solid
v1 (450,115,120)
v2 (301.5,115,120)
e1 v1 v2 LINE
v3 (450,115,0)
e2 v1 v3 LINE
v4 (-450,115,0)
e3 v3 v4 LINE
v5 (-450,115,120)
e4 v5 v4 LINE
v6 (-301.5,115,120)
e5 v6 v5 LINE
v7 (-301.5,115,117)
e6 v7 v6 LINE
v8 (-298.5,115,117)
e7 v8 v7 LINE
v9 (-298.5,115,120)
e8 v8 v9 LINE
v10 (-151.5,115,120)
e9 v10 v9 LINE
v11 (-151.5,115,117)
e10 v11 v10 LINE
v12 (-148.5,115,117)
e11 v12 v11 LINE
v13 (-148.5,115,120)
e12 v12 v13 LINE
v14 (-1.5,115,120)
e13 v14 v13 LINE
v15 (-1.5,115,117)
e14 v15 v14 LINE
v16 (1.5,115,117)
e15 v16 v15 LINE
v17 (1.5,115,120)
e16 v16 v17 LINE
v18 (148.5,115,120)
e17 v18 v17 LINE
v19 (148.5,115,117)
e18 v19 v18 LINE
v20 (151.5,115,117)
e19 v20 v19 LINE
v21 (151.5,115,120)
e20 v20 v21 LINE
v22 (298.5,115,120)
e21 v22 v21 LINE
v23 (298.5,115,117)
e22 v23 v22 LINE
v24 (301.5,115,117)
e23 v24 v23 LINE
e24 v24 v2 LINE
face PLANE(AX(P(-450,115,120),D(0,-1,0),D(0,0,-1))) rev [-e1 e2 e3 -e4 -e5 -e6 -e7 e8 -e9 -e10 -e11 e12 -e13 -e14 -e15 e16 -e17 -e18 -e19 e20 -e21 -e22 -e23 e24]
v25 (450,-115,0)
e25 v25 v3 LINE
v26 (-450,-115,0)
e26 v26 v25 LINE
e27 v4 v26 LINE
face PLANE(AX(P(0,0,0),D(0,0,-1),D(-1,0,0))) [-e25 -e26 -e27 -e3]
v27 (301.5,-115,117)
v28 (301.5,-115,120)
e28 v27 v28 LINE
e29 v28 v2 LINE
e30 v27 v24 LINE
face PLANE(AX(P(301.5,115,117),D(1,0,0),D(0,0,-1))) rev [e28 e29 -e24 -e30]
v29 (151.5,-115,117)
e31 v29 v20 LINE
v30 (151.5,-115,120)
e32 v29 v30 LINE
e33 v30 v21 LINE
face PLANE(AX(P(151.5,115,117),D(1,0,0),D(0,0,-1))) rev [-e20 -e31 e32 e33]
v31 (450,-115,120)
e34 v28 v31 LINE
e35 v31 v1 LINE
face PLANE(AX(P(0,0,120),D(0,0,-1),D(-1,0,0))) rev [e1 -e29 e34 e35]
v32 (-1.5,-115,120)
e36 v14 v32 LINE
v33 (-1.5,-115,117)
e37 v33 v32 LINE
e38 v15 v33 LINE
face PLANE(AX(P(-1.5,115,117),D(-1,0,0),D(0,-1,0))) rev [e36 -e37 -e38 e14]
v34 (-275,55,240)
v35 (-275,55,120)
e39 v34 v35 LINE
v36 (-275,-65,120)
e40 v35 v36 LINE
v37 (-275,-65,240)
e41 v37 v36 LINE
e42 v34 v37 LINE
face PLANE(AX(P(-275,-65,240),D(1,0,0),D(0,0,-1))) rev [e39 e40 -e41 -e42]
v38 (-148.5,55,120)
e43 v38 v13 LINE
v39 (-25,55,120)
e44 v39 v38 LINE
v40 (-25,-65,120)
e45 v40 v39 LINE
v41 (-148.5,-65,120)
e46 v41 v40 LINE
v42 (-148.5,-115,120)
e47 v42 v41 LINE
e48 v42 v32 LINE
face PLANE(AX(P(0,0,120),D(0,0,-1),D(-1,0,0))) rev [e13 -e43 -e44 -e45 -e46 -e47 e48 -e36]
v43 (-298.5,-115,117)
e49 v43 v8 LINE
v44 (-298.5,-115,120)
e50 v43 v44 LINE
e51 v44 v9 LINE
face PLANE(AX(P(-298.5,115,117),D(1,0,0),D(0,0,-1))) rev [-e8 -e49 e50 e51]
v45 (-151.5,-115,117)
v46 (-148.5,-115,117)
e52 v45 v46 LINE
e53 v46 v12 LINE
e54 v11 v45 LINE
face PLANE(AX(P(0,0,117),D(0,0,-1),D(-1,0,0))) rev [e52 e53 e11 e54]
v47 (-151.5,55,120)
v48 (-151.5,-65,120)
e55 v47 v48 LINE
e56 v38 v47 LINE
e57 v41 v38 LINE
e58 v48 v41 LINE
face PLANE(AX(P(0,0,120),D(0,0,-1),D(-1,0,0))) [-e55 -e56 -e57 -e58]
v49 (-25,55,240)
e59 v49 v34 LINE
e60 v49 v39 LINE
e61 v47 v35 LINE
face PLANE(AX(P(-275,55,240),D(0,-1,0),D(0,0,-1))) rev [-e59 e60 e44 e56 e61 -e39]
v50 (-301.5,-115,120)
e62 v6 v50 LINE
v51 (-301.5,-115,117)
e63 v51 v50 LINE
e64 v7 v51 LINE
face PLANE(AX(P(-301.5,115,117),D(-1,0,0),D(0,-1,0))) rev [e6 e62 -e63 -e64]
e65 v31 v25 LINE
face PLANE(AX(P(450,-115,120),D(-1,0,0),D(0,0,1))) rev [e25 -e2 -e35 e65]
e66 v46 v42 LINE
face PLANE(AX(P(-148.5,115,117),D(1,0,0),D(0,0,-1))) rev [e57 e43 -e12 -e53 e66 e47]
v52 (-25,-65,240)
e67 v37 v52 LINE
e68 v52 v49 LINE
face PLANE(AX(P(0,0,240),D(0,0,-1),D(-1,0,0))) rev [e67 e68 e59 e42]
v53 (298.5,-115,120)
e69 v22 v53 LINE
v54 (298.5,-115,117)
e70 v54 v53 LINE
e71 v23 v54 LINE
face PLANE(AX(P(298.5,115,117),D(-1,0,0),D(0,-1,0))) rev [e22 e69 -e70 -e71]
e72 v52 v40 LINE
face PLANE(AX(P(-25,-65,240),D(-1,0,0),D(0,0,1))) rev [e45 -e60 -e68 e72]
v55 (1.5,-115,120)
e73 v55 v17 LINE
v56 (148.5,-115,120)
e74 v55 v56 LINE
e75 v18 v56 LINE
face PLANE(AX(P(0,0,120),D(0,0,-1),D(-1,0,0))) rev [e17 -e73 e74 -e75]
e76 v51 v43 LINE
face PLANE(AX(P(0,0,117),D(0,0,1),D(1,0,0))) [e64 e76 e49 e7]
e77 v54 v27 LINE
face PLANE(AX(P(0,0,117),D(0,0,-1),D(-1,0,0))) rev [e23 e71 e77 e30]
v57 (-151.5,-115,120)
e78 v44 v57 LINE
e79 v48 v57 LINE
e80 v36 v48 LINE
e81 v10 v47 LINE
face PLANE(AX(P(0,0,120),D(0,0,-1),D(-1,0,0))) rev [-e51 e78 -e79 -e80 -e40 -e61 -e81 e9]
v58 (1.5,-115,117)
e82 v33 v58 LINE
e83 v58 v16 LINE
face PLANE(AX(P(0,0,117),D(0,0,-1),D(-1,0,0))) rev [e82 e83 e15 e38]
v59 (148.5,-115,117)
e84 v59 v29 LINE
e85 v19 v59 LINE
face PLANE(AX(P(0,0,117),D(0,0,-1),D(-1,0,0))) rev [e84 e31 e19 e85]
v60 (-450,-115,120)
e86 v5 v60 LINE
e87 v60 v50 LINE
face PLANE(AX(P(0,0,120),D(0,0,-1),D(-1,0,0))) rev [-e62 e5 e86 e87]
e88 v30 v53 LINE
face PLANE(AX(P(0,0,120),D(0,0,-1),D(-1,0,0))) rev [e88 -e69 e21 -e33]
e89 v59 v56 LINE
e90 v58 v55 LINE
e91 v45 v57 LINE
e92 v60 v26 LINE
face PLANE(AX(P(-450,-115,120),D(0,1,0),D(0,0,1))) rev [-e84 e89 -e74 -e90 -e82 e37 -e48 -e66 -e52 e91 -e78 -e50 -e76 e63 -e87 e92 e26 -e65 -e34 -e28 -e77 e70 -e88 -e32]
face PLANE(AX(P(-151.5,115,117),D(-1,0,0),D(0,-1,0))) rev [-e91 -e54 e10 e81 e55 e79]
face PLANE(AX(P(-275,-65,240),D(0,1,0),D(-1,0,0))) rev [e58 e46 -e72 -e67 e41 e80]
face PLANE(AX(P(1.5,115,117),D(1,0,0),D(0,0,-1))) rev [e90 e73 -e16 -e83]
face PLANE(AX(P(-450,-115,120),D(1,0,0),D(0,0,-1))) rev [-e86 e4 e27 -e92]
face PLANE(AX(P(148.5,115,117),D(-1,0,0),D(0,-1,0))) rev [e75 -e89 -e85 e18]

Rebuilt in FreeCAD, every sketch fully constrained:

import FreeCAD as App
import Part
import Sketcher

V = App.Vector


def add_polygon(sketch, points):
    """Adds a closed chain of lines whose ends are joined by coincident constraints."""
    first, n = sketch.GeometryCount, len(points)
    for a, b in zip(points, points[1:] + points[:1]):
        sketch.addGeometry(Part.LineSegment(App.Vector(*a, 0), App.Vector(*b, 0)), False)
    for i in range(n):
        sketch.addConstraint(Sketcher.Constraint("Coincident", first + i, 2, first + (i + 1) % n, 1))

doc = App.newDocument("Part")
body = doc.addObject("PartDesign::Body", "Body")

sketch1 = body.newObject("Sketcher::SketchObject", "Sketch")
sketch1.AttachmentSupport = (doc.getObject("XY_Plane"), [""])
sketch1.MapMode = "FlatFace"
add_polygon(sketch1, [(-450, 115), (-450, -115), (450, -115), (450, 115)])
sketch1.addConstraint([
    Sketcher.Constraint("Vertical", 0),
    Sketcher.Constraint("Horizontal", 1),
    Sketcher.Constraint("Vertical", 2),
    Sketcher.Constraint("Horizontal", 3),
    Sketcher.Constraint("Symmetric", 0, 2, 2, 2, -1, 1),
    Sketcher.Constraint("DistanceX", 1, 1, 1, 2, 900.0),
    Sketcher.Constraint("DistanceY", 0, 2, 0, 1, 230.0),
])
pad1 = body.newObject("PartDesign::Pad", "Pad")
pad1.Profile = sketch1
pad1.Length = 120

sketch2 = body.newObject("Sketcher::SketchObject", "Sketch001")
sketch2.AttachmentSupport = (doc.getObject("XY_Plane"), [""])
sketch2.MapMode = "FlatFace"
sketch2.AttachmentOffset = App.Placement(V(0, 0, 120), App.Rotation())
add_polygon(sketch2, [(-301.5, 115), (-301.5, -115), (-298.5, -115), (-298.5, 115)])
add_polygon(sketch2, [(-151.5, 115), (-151.5, -115), (-148.5, -115), (-148.5, 115)])
add_polygon(sketch2, [(-1.5, 115), (-1.5, -115), (1.5, -115), (1.5, 115)])
add_polygon(sketch2, [(148.5, 115), (148.5, -115), (151.5, -115), (151.5, 115)])
add_polygon(sketch2, [(298.5, 115), (298.5, -115), (301.5, -115), (301.5, 115)])
sketch2.addConstraint([
    Sketcher.Constraint("Vertical", 0),
    Sketcher.Constraint("Horizontal", 1),
    Sketcher.Constraint("Vertical", 2),
    Sketcher.Constraint("Horizontal", 3),
    Sketcher.Constraint("Vertical", 4),
    Sketcher.Constraint("Horizontal", 5),
    Sketcher.Constraint("Vertical", 6),
    Sketcher.Constraint("Horizontal", 7),
    Sketcher.Constraint("Vertical", 8),
    Sketcher.Constraint("Horizontal", 9),
    Sketcher.Constraint("Vertical", 10),
    Sketcher.Constraint("Horizontal", 11),
    Sketcher.Constraint("Vertical", 12),
    Sketcher.Constraint("Horizontal", 13),
    Sketcher.Constraint("Vertical", 14),
    Sketcher.Constraint("Horizontal", 15),
    Sketcher.Constraint("Vertical", 16),
    Sketcher.Constraint("Horizontal", 17),
    Sketcher.Constraint("Vertical", 18),
    Sketcher.Constraint("Horizontal", 19),
    Sketcher.Constraint("Symmetric", 8, 2, 10, 2, -1, 1),
    Sketcher.Constraint("Symmetric", 6, 2, 12, 2, -1, 1),
    Sketcher.Constraint("Symmetric", 4, 2, 14, 2, -1, 1),
    Sketcher.Constraint("Symmetric", 2, 2, 16, 2, -1, 1),
    Sketcher.Constraint("Symmetric", 0, 2, 18, 2, -1, 1),
    Sketcher.Constraint("Horizontal", 1, 2, 4, 2),
    Sketcher.Constraint("Horizontal", 3, 2, 6, 2),
    Sketcher.Constraint("Horizontal", 5, 2, 8, 2),
    Sketcher.Constraint("Horizontal", 7, 2, 10, 2),
    Sketcher.Constraint("Equal", 3, 5),
    Sketcher.Constraint("Equal", 7, 9),
    Sketcher.Constraint("DistanceX", 1, 1, 1, 2, 3.0),
    Sketcher.Constraint("DistanceY", 0, 2, 0, 1, 230.0),
    Sketcher.Constraint("DistanceX", 1, 2, 4, 2, 147.0),
    Sketcher.Constraint("DistanceX", 5, 2, 8, 2, 147.0),
])
pocket1 = body.newObject("PartDesign::Pocket", "Pocket")
pocket1.Profile = sketch2
pocket1.Length = 3

sketch3 = body.newObject("Sketcher::SketchObject", "Sketch002")
sketch3.AttachmentSupport = (doc.getObject("XY_Plane"), [""])
sketch3.MapMode = "FlatFace"
sketch3.AttachmentOffset = App.Placement(V(0, 0, 120), App.Rotation())
add_polygon(sketch3, [(-275, 55), (-275, -65), (-25, -65), (-25, 55)])
sketch3.addConstraint([
    Sketcher.Constraint("Vertical", 0),
    Sketcher.Constraint("Horizontal", 1),
    Sketcher.Constraint("Vertical", 2),
    Sketcher.Constraint("Horizontal", 3),
    Sketcher.Constraint("DistanceX", 1, 1, 1, 2, 250.0),
    Sketcher.Constraint("DistanceY", 0, 2, 0, 1, 120.0),
    Sketcher.Constraint("DistanceX", 0, 2, -1, 1, 275.0),
    Sketcher.Constraint("DistanceY", 0, 2, -1, 1, 65.0),
])
pad2 = body.newObject("PartDesign::Pad", "Pad001")
pad2.Profile = sketch3
pad2.Length = 120

doc.recompute()
